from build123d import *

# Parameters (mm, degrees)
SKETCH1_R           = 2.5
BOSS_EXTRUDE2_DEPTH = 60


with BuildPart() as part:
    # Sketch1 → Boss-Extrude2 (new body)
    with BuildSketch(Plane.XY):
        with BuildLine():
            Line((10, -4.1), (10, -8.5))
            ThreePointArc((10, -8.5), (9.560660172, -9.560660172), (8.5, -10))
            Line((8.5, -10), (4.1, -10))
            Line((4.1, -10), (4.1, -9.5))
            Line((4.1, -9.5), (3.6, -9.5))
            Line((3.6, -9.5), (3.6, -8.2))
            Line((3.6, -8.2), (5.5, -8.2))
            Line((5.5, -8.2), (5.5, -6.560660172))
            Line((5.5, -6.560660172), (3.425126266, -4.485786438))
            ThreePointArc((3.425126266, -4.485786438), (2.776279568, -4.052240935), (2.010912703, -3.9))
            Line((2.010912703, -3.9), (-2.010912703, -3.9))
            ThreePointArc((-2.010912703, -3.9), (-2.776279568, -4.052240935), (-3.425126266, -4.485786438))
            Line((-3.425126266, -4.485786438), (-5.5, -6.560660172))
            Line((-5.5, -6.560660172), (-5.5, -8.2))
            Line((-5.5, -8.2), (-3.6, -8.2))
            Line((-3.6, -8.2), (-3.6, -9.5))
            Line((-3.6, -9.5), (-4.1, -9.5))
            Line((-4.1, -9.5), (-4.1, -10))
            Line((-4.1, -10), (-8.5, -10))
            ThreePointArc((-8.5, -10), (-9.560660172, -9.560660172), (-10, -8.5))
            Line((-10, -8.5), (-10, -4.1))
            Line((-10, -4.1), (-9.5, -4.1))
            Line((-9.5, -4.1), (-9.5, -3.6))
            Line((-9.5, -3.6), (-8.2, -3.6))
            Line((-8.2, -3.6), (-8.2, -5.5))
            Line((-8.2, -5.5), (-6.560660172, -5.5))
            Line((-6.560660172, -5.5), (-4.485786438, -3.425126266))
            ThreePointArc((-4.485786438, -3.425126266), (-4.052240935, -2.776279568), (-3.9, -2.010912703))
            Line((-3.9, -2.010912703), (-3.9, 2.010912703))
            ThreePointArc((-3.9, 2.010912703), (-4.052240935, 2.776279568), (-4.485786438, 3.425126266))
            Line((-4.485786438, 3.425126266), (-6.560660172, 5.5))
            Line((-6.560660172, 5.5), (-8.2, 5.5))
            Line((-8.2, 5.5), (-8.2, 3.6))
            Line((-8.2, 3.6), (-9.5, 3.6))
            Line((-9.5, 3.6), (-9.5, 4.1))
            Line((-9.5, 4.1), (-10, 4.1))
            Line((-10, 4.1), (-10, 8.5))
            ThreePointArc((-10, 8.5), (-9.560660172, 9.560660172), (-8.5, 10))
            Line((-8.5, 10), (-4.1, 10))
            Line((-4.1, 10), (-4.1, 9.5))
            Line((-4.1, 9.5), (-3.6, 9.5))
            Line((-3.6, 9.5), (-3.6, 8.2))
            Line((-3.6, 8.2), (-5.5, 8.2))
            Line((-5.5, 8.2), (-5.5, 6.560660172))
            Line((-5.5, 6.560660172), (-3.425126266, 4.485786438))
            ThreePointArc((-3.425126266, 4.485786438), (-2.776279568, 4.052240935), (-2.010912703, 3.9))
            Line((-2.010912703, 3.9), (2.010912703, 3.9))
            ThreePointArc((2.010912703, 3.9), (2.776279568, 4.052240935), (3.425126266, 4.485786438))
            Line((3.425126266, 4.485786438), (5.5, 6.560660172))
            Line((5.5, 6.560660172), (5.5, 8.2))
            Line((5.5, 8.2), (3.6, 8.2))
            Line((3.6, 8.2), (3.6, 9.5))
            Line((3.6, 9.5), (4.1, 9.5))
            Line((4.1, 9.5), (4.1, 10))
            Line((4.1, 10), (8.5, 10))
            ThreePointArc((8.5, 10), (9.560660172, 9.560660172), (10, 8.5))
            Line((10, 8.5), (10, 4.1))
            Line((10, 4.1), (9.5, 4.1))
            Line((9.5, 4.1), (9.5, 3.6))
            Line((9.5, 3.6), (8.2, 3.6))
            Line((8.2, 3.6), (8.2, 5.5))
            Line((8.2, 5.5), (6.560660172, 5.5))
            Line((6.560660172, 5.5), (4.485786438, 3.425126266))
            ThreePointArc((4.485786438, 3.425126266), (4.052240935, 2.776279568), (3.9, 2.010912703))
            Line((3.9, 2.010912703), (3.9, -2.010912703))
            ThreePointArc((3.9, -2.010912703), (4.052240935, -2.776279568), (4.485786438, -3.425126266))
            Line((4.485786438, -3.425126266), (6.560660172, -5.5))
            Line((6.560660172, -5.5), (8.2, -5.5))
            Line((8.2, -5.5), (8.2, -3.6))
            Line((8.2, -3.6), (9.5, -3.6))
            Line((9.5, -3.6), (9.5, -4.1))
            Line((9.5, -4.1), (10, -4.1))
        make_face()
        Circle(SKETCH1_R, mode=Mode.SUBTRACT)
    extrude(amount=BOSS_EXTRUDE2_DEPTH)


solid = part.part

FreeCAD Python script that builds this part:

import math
import FreeCAD as App
import Part
import Sketcher
Q = App.Units.Quantity

doc = App.newDocument("Part")
body = doc.addObject("PartDesign::Body", "Body")

# Sketch on XY plane
sketch1 = body.newObject("Sketcher::SketchObject", "Sketch")
sketch1.AttachmentSupport = (doc.getObject("XY_Plane"), [""])
sketch1.MapMode = "FlatFace"
sketch1.addGeometry(Part.LineSegment(App.Vector(10, -8.5, 0), App.Vector(10, -4.1, 0)), False)
sketch1.addGeometry(Part.LineSegment(App.Vector(10, -4.1, 0), App.Vector(9.5, -4.1, 0)), False)
sketch1.addGeometry(Part.LineSegment(App.Vector(9.5, -4.1, 0), App.Vector(9.5, -3.6, 0)), False)
sketch1.addGeometry(Part.LineSegment(App.Vector(9.5, -3.6, 0), App.Vector(8.2, -3.6, 0)), False)
sketch1.addGeometry(Part.LineSegment(App.Vector(8.2, -3.6, 0), App.Vector(8.2, -5.5, 0)), False)
sketch1.addGeometry(Part.LineSegment(App.Vector(8.2, -5.5, 0), App.Vector(6.56, -5.5, 0)), False)
sketch1.addGeometry(Part.LineSegment(App.Vector(6.56, -5.5, 0), App.Vector(4.49, -3.43, 0)), False)
sketch1.addGeometry(Part.ArcOfCircle(Part.Circle(App.Vector(5.9, -2.01, 0), App.Vector(0, 0, 1), 2), math.radians(180), math.radians(225)), False)
sketch1.addGeometry(Part.LineSegment(App.Vector(3.9, -2.01, 0), App.Vector(3.9, 2.01, 0)), False)
sketch1.addGeometry(Part.ArcOfCircle(Part.Circle(App.Vector(5.9, 2.01, 0), App.Vector(0, 0, 1), 2), math.radians(135), math.radians(180)), False)
sketch1.addGeometry(Part.LineSegment(App.Vector(4.49, 3.43, 0), App.Vector(6.56, 5.5, 0)), False)
sketch1.addGeometry(Part.LineSegment(App.Vector(6.56, 5.5, 0), App.Vector(8.2, 5.5, 0)), False)
sketch1.addGeometry(Part.LineSegment(App.Vector(8.2, 5.5, 0), App.Vector(8.2, 3.6, 0)), False)
sketch1.addGeometry(Part.LineSegment(App.Vector(8.2, 3.6, 0), App.Vector(9.5, 3.6, 0)), False)
sketch1.addGeometry(Part.LineSegment(App.Vector(9.5, 3.6, 0), App.Vector(9.5, 4.1, 0)), False)
sketch1.addGeometry(Part.LineSegment(App.Vector(9.5, 4.1, 0), App.Vector(10, 4.1, 0)), False)
sketch1.addGeometry(Part.LineSegment(App.Vector(10, 4.1, 0), App.Vector(10, 8.5, 0)), False)
sketch1.addGeometry(Part.ArcOfCircle(Part.Circle(App.Vector(8.5, 8.5, 0), App.Vector(0, 0, 1), 1.5), math.radians(0), math.radians(90)), False)
sketch1.addGeometry(Part.LineSegment(App.Vector(8.5, 10, 0), App.Vector(4.1, 10, 0)), False)
sketch1.addGeometry(Part.LineSegment(App.Vector(4.1, 10, 0), App.Vector(4.1, 9.5, 0)), False)
sketch1.addGeometry(Part.LineSegment(App.Vector(4.1, 9.5, 0), App.Vector(3.6, 9.5, 0)), False)
sketch1.addGeometry(Part.LineSegment(App.Vector(3.6, 9.5, 0), App.Vector(3.6, 8.2, 0)), False)
sketch1.addGeometry(Part.LineSegment(App.Vector(3.6, 8.2, 0), App.Vector(5.5, 8.2, 0)), False)
sketch1.addGeometry(Part.LineSegment(App.Vector(5.5, 8.2, 0), App.Vector(5.5, 6.56, 0)), False)
sketch1.addGeometry(Part.LineSegment(App.Vector(5.5, 6.56, 0), App.Vector(3.43, 4.49, 0)), False)
sketch1.addGeometry(Part.ArcOfCircle(Part.Circle(App.Vector(2.01, 5.9, 0), App.Vector(0, 0, 1), 2), math.radians(-90), math.radians(-45)), False)
sketch1.addGeometry(Part.LineSegment(App.Vector(2.01, 3.9, 0), App.Vector(-2.01, 3.9, 0)), False)
sketch1.addGeometry(Part.ArcOfCircle(Part.Circle(App.Vector(-2.01, 5.9, 0), App.Vector(0, 0, 1), 2), math.radians(-135), math.radians(-90)), False)
sketch1.addGeometry(Part.LineSegment(App.Vector(-3.43, 4.49, 0), App.Vector(-5.5, 6.56, 0)), False)
sketch1.addGeometry(Part.LineSegment(App.Vector(-5.5, 6.56, 0), App.Vector(-5.5, 8.2, 0)), False)
sketch1.addGeometry(Part.LineSegment(App.Vector(-5.5, 8.2, 0), App.Vector(-3.6, 8.2, 0)), False)
sketch1.addGeometry(Part.LineSegment(App.Vector(-3.6, 8.2, 0), App.Vector(-3.6, 9.5, 0)), False)
sketch1.addGeometry(Part.LineSegment(App.Vector(-3.6, 9.5, 0), App.Vector(-4.1, 9.5, 0)), False)
sketch1.addGeometry(Part.LineSegment(App.Vector(-4.1, 9.5, 0), App.Vector(-4.1, 10, 0)), False)
sketch1.addGeometry(Part.LineSegment(App.Vector(-4.1, 10, 0), App.Vector(-8.5, 10, 0)), False)
sketch1.addGeometry(Part.ArcOfCircle(Part.Circle(App.Vector(-8.5, 8.5, 0), App.Vector(0, 0, 1), 1.5), math.radians(90), math.radians(180)), False)
sketch1.addGeometry(Part.LineSegment(App.Vector(-10, 8.5, 0), App.Vector(-10, 4.1, 0)), False)
sketch1.addGeometry(Part.LineSegment(App.Vector(-10, 4.1, 0), App.Vector(-9.5, 4.1, 0)), False)
sketch1.addGeometry(Part.LineSegment(App.Vector(-9.5, 4.1, 0), App.Vector(-9.5, 3.6, 0)), False)
sketch1.addGeometry(Part.LineSegment(App.Vector(-9.5, 3.6, 0), App.Vector(-8.2, 3.6, 0)), False)
sketch1.addGeometry(Part.LineSegment(App.Vector(-8.2, 3.6, 0), App.Vector(-8.2, 5.5, 0)), False)
sketch1.addGeometry(Part.LineSegment(App.Vector(-8.2, 5.5, 0), App.Vector(-6.56, 5.5, 0)), False)
sketch1.addGeometry(Part.LineSegment(App.Vector(-6.56, 5.5, 0), App.Vector(-4.49, 3.43, 0)), False)
sketch1.addGeometry(Part.ArcOfCircle(Part.Circle(App.Vector(-5.9, 2.01, 0), App.Vector(0, 0, 1), 2), math.radians(0), math.radians(45)), False)
sketch1.addGeometry(Part.LineSegment(App.Vector(-3.9, 2.01, 0), App.Vector(-3.9, -2.01, 0)), False)
sketch1.addGeometry(Part.ArcOfCircle(Part.Circle(App.Vector(-5.9, -2.01, 0), App.Vector(0, 0, 1), 2), math.radians(-45), math.radians(0)), False)
sketch1.addGeometry(Part.LineSegment(App.Vector(-4.49, -3.43, 0), App.Vector(-6.56, -5.5, 0)), False)
sketch1.addGeometry(Part.LineSegment(App.Vector(-6.56, -5.5, 0), App.Vector(-8.2, -5.5, 0)), False)
sketch1.addGeometry(Part.LineSegment(App.Vector(-8.2, -5.5, 0), App.Vector(-8.2, -3.6, 0)), False)
sketch1.addGeometry(Part.LineSegment(App.Vector(-8.2, -3.6, 0), App.Vector(-9.5, -3.6, 0)), False)
sketch1.addGeometry(Part.LineSegment(App.Vector(-9.5, -3.6, 0), App.Vector(-9.5, -4.1, 0)), False)
sketch1.addGeometry(Part.LineSegment(App.Vector(-9.5, -4.1, 0), App.Vector(-10, -4.1, 0)), False)
sketch1.addGeometry(Part.LineSegment(App.Vector(-10, -4.1, 0), App.Vector(-10, -8.5, 0)), False)
sketch1.addGeometry(Part.ArcOfCircle(Part.Circle(App.Vector(-8.5, -8.5, 0), App.Vector(0, 0, 1), 1.5), math.radians(180), math.radians(270)), False)
sketch1.addGeometry(Part.LineSegment(App.Vector(-8.5, -10, 0), App.Vector(-4.1, -10, 0)), False)
sketch1.addGeometry(Part.LineSegment(App.Vector(-4.1, -10, 0), App.Vector(-4.1, -9.5, 0)), False)
sketch1.addGeometry(Part.LineSegment(App.Vector(-4.1, -9.5, 0), App.Vector(-3.6, -9.5, 0)), False)
sketch1.addGeometry(Part.LineSegment(App.Vector(-3.6, -9.5, 0), App.Vector(-3.6, -8.2, 0)), False)
sketch1.addGeometry(Part.LineSegment(App.Vector(-3.6, -8.2, 0), App.Vector(-5.5, -8.2, 0)), False)
sketch1.addGeometry(Part.LineSegment(App.Vector(-5.5, -8.2, 0), App.Vector(-5.5, -6.56, 0)), False)
sketch1.addGeometry(Part.LineSegment(App.Vector(-5.5, -6.56, 0), App.Vector(-3.43, -4.49, 0)), False)
sketch1.addGeometry(Part.ArcOfCircle(Part.Circle(App.Vector(-2.01, -5.9, 0), App.Vector(0, 0, 1), 2), math.radians(90), math.radians(135)), False)
sketch1.addGeometry(Part.LineSegment(App.Vector(-2.01, -3.9, 0), App.Vector(2.01, -3.9, 0)), False)
sketch1.addGeometry(Part.ArcOfCircle(Part.Circle(App.Vector(2.01, -5.9, 0), App.Vector(0, 0, 1), 2), math.radians(45), math.radians(90)), False)
sketch1.addGeometry(Part.LineSegment(App.Vector(3.43, -4.49, 0), App.Vector(5.5, -6.56, 0)), False)
sketch1.addGeometry(Part.LineSegment(App.Vector(5.5, -6.56, 0), App.Vector(5.5, -8.2, 0)), False)
sketch1.addGeometry(Part.LineSegment(App.Vector(5.5, -8.2, 0), App.Vector(3.6, -8.2, 0)), False)
sketch1.addGeometry(Part.LineSegment(App.Vector(3.6, -8.2, 0), App.Vector(3.6, -9.5, 0)), False)
sketch1.addGeometry(Part.LineSegment(App.Vector(3.6, -9.5, 0), App.Vector(4.1, -9.5, 0)), False)
sketch1.addGeometry(Part.LineSegment(App.Vector(4.1, -9.5, 0), App.Vector(4.1, -10, 0)), False)
sketch1.addGeometry(Part.LineSegment(App.Vector(4.1, -10, 0), App.Vector(8.5, -10, 0)), False)
sketch1.addGeometry(Part.ArcOfCircle(Part.Circle(App.Vector(8.5, -8.5, 0), App.Vector(0, 0, 1), 1.5), math.radians(-90), math.radians(0)), False)
sketch1.addGeometry(Part.Circle(App.Vector(0, 0, 0), App.Vector(0, 0, 1), 2.5), False)
sketch1.addConstraint(Sketcher.Constraint("Coincident", 0, 2, 1, 1))
sketch1.addConstraint(Sketcher.Constraint("Coincident", 1, 2, 2, 1))
sketch1.addConstraint(Sketcher.Constraint("Coincident", 2, 2, 3, 1))
sketch1.addConstraint(Sketcher.Constraint("Coincident", 3, 2, 4, 1))
sketch1.addConstraint(Sketcher.Constraint("Coincident", 4, 2, 5, 1))
sketch1.addConstraint(Sketcher.Constraint("Coincident", 5, 2, 6, 1))
sketch1.addConstraint(Sketcher.Constraint("Tangent", 6, 2, 7, 2))
sketch1.addConstraint(Sketcher.Constraint("Tangent", 7, 1, 8, 1))
sketch1.addConstraint(Sketcher.Constraint("Tangent", 8, 2, 9, 2))
sketch1.addConstraint(Sketcher.Constraint("Tangent", 9, 1, 10, 1))
sketch1.addConstraint(Sketcher.Constraint("Coincident", 10, 2, 11, 1))
sketch1.addConstraint(Sketcher.Constraint("Coincident", 11, 2, 12, 1))
sketch1.addConstraint(Sketcher.Constraint("Coincident", 12, 2, 13, 1))
sketch1.addConstraint(Sketcher.Constraint("Coincident", 13, 2, 14, 1))
sketch1.addConstraint(Sketcher.Constraint("Coincident", 14, 2, 15, 1))
sketch1.addConstraint(Sketcher.Constraint("Coincident", 15, 2, 16, 1))
sketch1.addConstraint(Sketcher.Constraint("Tangent", 16, 2, 17, 1))
sketch1.addConstraint(Sketcher.Constraint("Tangent", 17, 2, 18, 1))
sketch1.addConstraint(Sketcher.Constraint("Coincident", 18, 2, 19, 1))
sketch1.addConstraint(Sketcher.Constraint("Coincident", 19, 2, 20, 1))
sketch1.addConstraint(Sketcher.Constraint("Coincident", 20, 2, 21, 1))
sketch1.addConstraint(Sketcher.Constraint("Coincident", 21, 2, 22, 1))
sketch1.addConstraint(Sketcher.Constraint("Coincident", 22, 2, 23, 1))
sketch1.addConstraint(Sketcher.Constraint("Coincident", 23, 2, 24, 1))
sketch1.addConstraint(Sketcher.Constraint("Tangent", 24, 2, 25, 2))
sketch1.addConstraint(Sketcher.Constraint("Tangent", 25, 1, 26, 1))
sketch1.addConstraint(Sketcher.Constraint("Tangent", 26, 2, 27, 2))
sketch1.addConstraint(Sketcher.Constraint("Tangent", 27, 1, 28, 1))
sketch1.addConstraint(Sketcher.Constraint("Coincident", 28, 2, 29, 1))
sketch1.addConstraint(Sketcher.Constraint("Coincident", 29, 2, 30, 1))
sketch1.addConstraint(Sketcher.Constraint("Coincident", 30, 2, 31, 1))
sketch1.addConstraint(Sketcher.Constraint("Coincident", 31, 2, 32, 1))
sketch1.addConstraint(Sketcher.Constraint("Coincident", 32, 2, 33, 1))
sketch1.addConstraint(Sketcher.Constraint("Coincident", 33, 2, 34, 1))
sketch1.addConstraint(Sketcher.Constraint("Tangent", 34, 2, 35, 1))
sketch1.addConstraint(Sketcher.Constraint("Tangent", 35, 2, 36, 1))
sketch1.addConstraint(Sketcher.Constraint("Coincident", 36, 2, 37, 1))
sketch1.addConstraint(Sketcher.Constraint("Coincident", 37, 2, 38, 1))
sketch1.addConstraint(Sketcher.Constraint("Coincident", 38, 2, 39, 1))
sketch1.addConstraint(Sketcher.Constraint("Coincident", 39, 2, 40, 1))
sketch1.addConstraint(Sketcher.Constraint("Coincident", 40, 2, 41, 1))
sketch1.addConstraint(Sketcher.Constraint("Coincident", 41, 2, 42, 1))
sketch1.addConstraint(Sketcher.Constraint("Tangent", 42, 2, 43, 2))
sketch1.addConstraint(Sketcher.Constraint("Tangent", 43, 1, 44, 1))
sketch1.addConstraint(Sketcher.Constraint("Tangent", 44, 2, 45, 2))
sketch1.addConstraint(Sketcher.Constraint("Tangent", 45, 1, 46, 1))
sketch1.addConstraint(Sketcher.Constraint("Coincident", 46, 2, 47, 1))
sketch1.addConstraint(Sketcher.Constraint("Coincident", 47, 2, 48, 1))
sketch1.addConstraint(Sketcher.Constraint("Coincident", 48, 2, 49, 1))
sketch1.addConstraint(Sketcher.Constraint("Coincident", 49, 2, 50, 1))
sketch1.addConstraint(Sketcher.Constraint("Coincident", 50, 2, 51, 1))
sketch1.addConstraint(Sketcher.Constraint("Coincident", 51, 2, 52, 1))
sketch1.addConstraint(Sketcher.Constraint("Tangent", 52, 2, 53, 1))
sketch1.addConstraint(Sketcher.Constraint("Tangent", 53, 2, 54, 1))
sketch1.addConstraint(Sketcher.Constraint("Coincident", 54, 2, 55, 1))
sketch1.addConstraint(Sketcher.Constraint("Coincident", 55, 2, 56, 1))
sketch1.addConstraint(Sketcher.Constraint("Coincident", 56, 2, 57, 1))
sketch1.addConstraint(Sketcher.Constraint("Coincident", 57, 2, 58, 1))
sketch1.addConstraint(Sketcher.Constraint("Coincident", 58, 2, 59, 1))
sketch1.addConstraint(Sketcher.Constraint("Coincident", 59, 2, 60, 1))
sketch1.addConstraint(Sketcher.Constraint("Tangent", 60, 2, 61, 2))
sketch1.addConstraint(Sketcher.Constraint("Tangent", 61, 1, 62, 1))
sketch1.addConstraint(Sketcher.Constraint("Tangent", 62, 2, 63, 2))
sketch1.addConstraint(Sketcher.Constraint("Tangent", 63, 1, 64, 1))
sketch1.addConstraint(Sketcher.Constraint("Coincident", 64, 2, 65, 1))
sketch1.addConstraint(Sketcher.Constraint("Coincident", 65, 2, 66, 1))
sketch1.addConstraint(Sketcher.Constraint("Coincident", 66, 2, 67, 1))
sketch1.addConstraint(Sketcher.Constraint("Coincident", 67, 2, 68, 1))
sketch1.addConstraint(Sketcher.Constraint("Coincident", 68, 2, 69, 1))
sketch1.addConstraint(Sketcher.Constraint("Coincident", 69, 2, 70, 1))
sketch1.addConstraint(Sketcher.Constraint("Tangent", 70, 2, 71, 1))
sketch1.addConstraint(Sketcher.Constraint("Tangent", 71, 2, 0, 1))
sketch1.addConstraint(Sketcher.Constraint("Vertical", 0))
sketch1.addConstraint(Sketcher.Constraint("Horizontal", 1))
sketch1.addConstraint(Sketcher.Constraint("Vertical", 2))
sketch1.addConstraint(Sketcher.Constraint("Horizontal", 3))
sketch1.addConstraint(Sketcher.Constraint("Vertical", 4))
sketch1.addConstraint(Sketcher.Constraint("Horizontal", 5))
sketch1.addConstraint(Sketcher.Constraint("Vertical", 8))
sketch1.addConstraint(Sketcher.Constraint("Horizontal", 11))
sketch1.addConstraint(Sketcher.Constraint("Vertical", 12))
sketch1.addConstraint(Sketcher.Constraint("Horizontal", 13))
sketch1.addConstraint(Sketcher.Constraint("Vertical", 14))
sketch1.addConstraint(Sketcher.Constraint("Horizontal", 15))
sketch1.addConstraint(Sketcher.Constraint("Vertical", 16))
sketch1.addConstraint(Sketcher.Constraint("Horizontal", 18))
sketch1.addConstraint(Sketcher.Constraint("Vertical", 19))
sketch1.addConstraint(Sketcher.Constraint("Horizontal", 20))
sketch1.addConstraint(Sketcher.Constraint("Vertical", 21))
sketch1.addConstraint(Sketcher.Constraint("Horizontal", 22))
sketch1.addConstraint(Sketcher.Constraint("Vertical", 23))
sketch1.addConstraint(Sketcher.Constraint("Horizontal", 26))
sketch1.addConstraint(Sketcher.Constraint("Vertical", 29))
sketch1.addConstraint(Sketcher.Constraint("Horizontal", 30))
sketch1.addConstraint(Sketcher.Constraint("Vertical", 31))
sketch1.addConstraint(Sketcher.Constraint("Horizontal", 32))
sketch1.addConstraint(Sketcher.Constraint("Vertical", 33))
sketch1.addConstraint(Sketcher.Constraint("Horizontal", 34))
sketch1.addConstraint(Sketcher.Constraint("Vertical", 36))
sketch1.addConstraint(Sketcher.Constraint("Horizontal", 37))
sketch1.addConstraint(Sketcher.Constraint("Vertical", 38))
sketch1.addConstraint(Sketcher.Constraint("Horizontal", 39))
sketch1.addConstraint(Sketcher.Constraint("Vertical", 40))
sketch1.addConstraint(Sketcher.Constraint("Horizontal", 41))
sketch1.addConstraint(Sketcher.Constraint("Vertical", 44))
sketch1.addConstraint(Sketcher.Constraint("Horizontal", 47))
sketch1.addConstraint(Sketcher.Constraint("Vertical", 48))
sketch1.addConstraint(Sketcher.Constraint("Horizontal", 49))
sketch1.addConstraint(Sketcher.Constraint("Vertical", 50))
sketch1.addConstraint(Sketcher.Constraint("Horizontal", 51))
sketch1.addConstraint(Sketcher.Constraint("Vertical", 52))
sketch1.addConstraint(Sketcher.Constraint("Horizontal", 54))
sketch1.addConstraint(Sketcher.Constraint("Vertical", 55))
sketch1.addConstraint(Sketcher.Constraint("Horizontal", 56))
sketch1.addConstraint(Sketcher.Constraint("Vertical", 57))
sketch1.addConstraint(Sketcher.Constraint("Horizontal", 58))
sketch1.addConstraint(Sketcher.Constraint("Vertical", 59))
sketch1.addConstraint(Sketcher.Constraint("Horizontal", 62))
sketch1.addConstraint(Sketcher.Constraint("Vertical", 65))
sketch1.addConstraint(Sketcher.Constraint("Horizontal", 66))
sketch1.addConstraint(Sketcher.Constraint("Vertical", 67))
sketch1.addConstraint(Sketcher.Constraint("Horizontal", 68))
sketch1.addConstraint(Sketcher.Constraint("Vertical", 69))
sketch1.addConstraint(Sketcher.Constraint("Horizontal", 70))
sketch1.addConstraint(Sketcher.Constraint("Coincident", 72, 3, -1, 1))
sketch1.addConstraint(Sketcher.Constraint("Equal", 7, 9))
sketch1.addConstraint(Sketcher.Constraint("Equal", 9, 25))
sketch1.addConstraint(Sketcher.Constraint("Equal", 25, 27))
sketch1.addConstraint(Sketcher.Constraint("Equal", 17, 35))
sketch1.addConstraint(Sketcher.Constraint("Equal", 27, 43))
sketch1.addConstraint(Sketcher.Constraint("Equal", 43, 45))
sketch1.addConstraint(Sketcher.Constraint("Equal", 35, 53))
sketch1.addConstraint(Sketcher.Constraint("Equal", 45, 61))
sketch1.addConstraint(Sketcher.Constraint("Equal", 61, 63))
sketch1.addConstraint(Sketcher.Constraint("Equal", 53, 71))
sketch1.addConstraint(Sketcher.Constraint("Symmetric", 7, 3, 43, 3, -1, 1))
sketch1.addConstraint(Sketcher.Constraint("Symmetric", 17, 3, 53, 3, -1, 1))
sketch1.addConstraint(Sketcher.Constraint("Symmetric", 25, 3, 61, 3, -1, 1))
sketch1.addConstraint(Sketcher.Constraint("Symmetric", 35, 3, 71, 3, -1, 1))
sketch1.addConstraint(Sketcher.Constraint("Symmetric", 1, 2, 37, 2, -1, 1))
sketch1.addConstraint(Sketcher.Constraint("Symmetric", 3, 2, 39, 2, -1, 1))
sketch1.addConstraint(Sketcher.Constraint("Symmetric", 5, 2, 41, 2, -1, 1))
sketch1.addConstraint(Sketcher.Constraint("Symmetric", 9, 1, 45, 1, -1, 1))
sketch1.addConstraint(Sketcher.Constraint("Symmetric", 11, 2, 47, 2, -1, 1))
sketch1.addConstraint(Sketcher.Constraint("Symmetric", 13, 2, 49, 2, -1, 1))
sketch1.addConstraint(Sketcher.Constraint("Symmetric", 19, 2, 55, 2, -1, 1))
sketch1.addConstraint(Sketcher.Constraint("Symmetric", 21, 2, 57, 2, -1, 1))
sketch1.addConstraint(Sketcher.Constraint("Symmetric", 23, 2, 59, 2, -1, 1))
sketch1.addConstraint(Sketcher.Constraint("Symmetric", 27, 1, 63, 1, -1, 1))
sketch1.addConstraint(Sketcher.Constraint("Symmetric", 29, 2, 65, 2, -1, 1))
sketch1.addConstraint(Sketcher.Constraint("Symmetric", 31, 2, 67, 2, -1, 1))
sketch1.addConstraint(Sketcher.Constraint("Symmetric", 17, 3, 35, 3, -2))
sketch1.addConstraint(Sketcher.Constraint("Symmetric", 24, 2, 27, 1, -2))
sketch1.addConstraint(Sketcher.Constraint("Symmetric", 22, 2, 29, 2, -2))
sketch1.addConstraint(Sketcher.Constraint("Symmetric", 20, 2, 31, 2, -2))
sketch1.addConstraint(Sketcher.Constraint("Symmetric", 14, 2, 37, 2, -2))
sketch1.addConstraint(Sketcher.Constraint("Symmetric", 12, 2, 39, 2, -2))
sketch1.addConstraint(Sketcher.Constraint("Symmetric", 10, 2, 41, 2, -2))
sketch1.addConstraint(Sketcher.Constraint("Perpendicular", 6, 10))
sketch1.addConstraint(Sketcher.Constraint("Parallel", 10, 24))
sketch1.addConstraint(Sketcher.Constraint("Perpendicular", 24, 28))
sketch1.addConstraint(Sketcher.Constraint("Horizontal", 1, 2, 50, 2))
sketch1.addConstraint(Sketcher.Constraint("Vertical", 33, 2, 54, 2))
sketch1.addConstraint(Sketcher.Constraint("Vertical", 19, 2, 68, 2))
sketch1.addConstraint(Sketcher.Constraint("Equal", 15, 20))
sketch1.addConstraint(Sketcher.Constraint("Equal", 70, 0))
sketch1.addConstraint(Sketcher.Constraint("Equal", 68, 2))
sketch1.addConstraint(Sketcher.Constraint("Equal", 66, 4))
sketch1.addConstraint(Sketcher.Constraint("Equal", 62, 8))
sketch1.addConstraint(Sketcher.Constraint("Equal", 14, 19))
sketch1.addConstraint(Sketcher.Constraint("Equal", 49, 21))
sketch1.addConstraint(Sketcher.Constraint("Equal", 47, 23))
sketch1.addConstraint(Sketcher.Constraint("Equal", 10, 24))
sketch1.addConstraint(Sketcher.Constraint("Diameter", 72, Q("5 mm")))
sketch1.addConstraint(Sketcher.Constraint("Radius", 7, Q("2 mm")))
sketch1.addConstraint(Sketcher.Constraint("Radius", 17, Q("1.5 mm")))
sketch1.addConstraint(Sketcher.Constraint("DistanceX", 1, 2, 1, 1, Q("0.5 mm")))
sketch1.addConstraint(Sketcher.Constraint("DistanceX", 3, 2, 3, 1, Q("1.3 mm")))
sketch1.addConstraint(Sketcher.Constraint("DistanceX", 18, 2, 18, 1, Q("4.4 mm")))
sketch1.addConstraint(Sketcher.Constraint("DistanceX", 22, 1, 22, 2, Q("1.9 mm")))
sketch1.addConstraint(Sketcher.Constraint("DistanceX", -1, 1, 0, 2, Q("10 mm")))
sketch1.addConstraint(Sketcher.Constraint("DistanceX", -1, 1, 7, 3, Q("5.9 mm")))
sketch1.addConstraint(Sketcher.Constraint("DistanceX", 5, 2, 5, 1, Q("1.63934 mm")))
pad1 = body.newObject("PartDesign::Pad", "Pad")
pad1.Profile = sketch1
pad1.Length = 60

doc.recompute()
